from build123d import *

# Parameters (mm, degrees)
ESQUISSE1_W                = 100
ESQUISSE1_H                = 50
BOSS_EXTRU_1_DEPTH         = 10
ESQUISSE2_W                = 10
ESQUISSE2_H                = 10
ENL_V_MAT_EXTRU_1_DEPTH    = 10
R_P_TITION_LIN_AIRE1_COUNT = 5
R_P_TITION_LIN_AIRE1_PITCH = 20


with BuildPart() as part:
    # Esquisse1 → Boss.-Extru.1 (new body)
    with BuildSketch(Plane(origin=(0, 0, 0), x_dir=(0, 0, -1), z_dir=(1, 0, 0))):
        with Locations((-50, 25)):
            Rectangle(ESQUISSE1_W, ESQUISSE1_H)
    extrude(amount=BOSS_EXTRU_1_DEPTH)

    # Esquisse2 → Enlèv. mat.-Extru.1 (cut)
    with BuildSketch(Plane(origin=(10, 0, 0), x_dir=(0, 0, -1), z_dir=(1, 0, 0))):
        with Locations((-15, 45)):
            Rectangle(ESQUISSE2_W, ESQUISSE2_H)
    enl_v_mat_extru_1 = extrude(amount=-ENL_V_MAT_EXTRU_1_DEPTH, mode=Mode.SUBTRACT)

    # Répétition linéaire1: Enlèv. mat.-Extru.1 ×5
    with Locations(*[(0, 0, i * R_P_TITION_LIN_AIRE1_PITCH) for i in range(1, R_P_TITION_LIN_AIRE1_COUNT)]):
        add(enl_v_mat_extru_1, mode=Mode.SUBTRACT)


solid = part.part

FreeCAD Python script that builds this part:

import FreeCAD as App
import Part
import Sketcher

V = App.Vector
Q = App.Units.Quantity


def add_polygon(sketch, points):
    """Adds a closed chain of lines whose ends are joined by coincident constraints."""
    first, n = sketch.GeometryCount, len(points)
    for a, b in zip(points, points[1:] + points[:1]):
        sketch.addGeometry(Part.LineSegment(App.Vector(*a, 0), App.Vector(*b, 0)), False)
    for i in range(n):
        sketch.addConstraint(Sketcher.Constraint("Coincident", first + i, 2, first + (i + 1) % n, 1))

doc = App.newDocument("Part")
body = doc.addObject("PartDesign::Body", "Body")

# Sketch on YZ plane
sketch1 = doc.addObject("Sketcher::SketchObject", "Sketch")
body.addObject(sketch1)
sketch1.AttachmentSupport = (doc.YZ_Plane, [""])
sketch1.MapMode = "FlatFace"
add_polygon(sketch1, [(50, 100), (0, 100), (0, 0), (50, 0)])  # lines 0-3
sketch1.addConstraint([
    Sketcher.Constraint("Horizontal", 0),
    Sketcher.Constraint("Vertical", 1),
    Sketcher.Constraint("Horizontal", 2),
    Sketcher.Constraint("Vertical", 3),
    Sketcher.Constraint("Coincident", 1, 2, -1, 1),
    Sketcher.Constraint("DistanceX", 0, 2, 0, 1, Q("50 mm")),
    Sketcher.Constraint("DistanceY", 1, 2, 1, 1, Q("100 mm")),
])
pad1 = doc.addObject("PartDesign::Pad", "Pad")
body.addObject(pad1)
pad1.Profile = sketch1
pad1.Length = 10

# Sketch on YZ plane
sketch2 = doc.addObject("Sketcher::SketchObject", "Sketch001")
body.addObject(sketch2)
sketch2.AttachmentSupport = (doc.YZ_Plane, [""])
sketch2.MapMode = "FlatFace"
sketch2.AttachmentOffset = App.Placement(V(0, 0, 10), App.Rotation())
add_polygon(sketch2, [(50, 20), (40, 20), (40, 10), (50, 10)])  # lines 0-3
sketch2.addConstraint([
    Sketcher.Constraint("Horizontal", 0),
    Sketcher.Constraint("Vertical", 1),
    Sketcher.Constraint("Horizontal", 2),
    Sketcher.Constraint("Vertical", 3),
    Sketcher.Constraint("Equal", 2, 1),
    Sketcher.Constraint("DistanceX", 0, 2, 0, 1, Q("10 mm")),
    Sketcher.Constraint("DistanceX", -1, 1, 0, 2, Q("40 mm")),
    Sketcher.Constraint("DistanceY", -1, 1, 0, 2, Q("20 mm")),
])
pocket1 = doc.addObject("PartDesign::Pocket", "Pocket")
body.addObject(pocket1)
pocket1.Profile = sketch2
pocket1.Length = 10
doc.recompute()

linearpattern = doc.addObject("PartDesign::LinearPattern", "LinearPattern")
body.addObject(linearpattern)
linearpattern.Originals = [pocket1]
linearpattern.Direction = (doc.Z_Axis, [""])
linearpattern.Mode = "offset"
linearpattern.Offset = 20
linearpattern.Occurrences = 5
body.Tip = linearpattern

doc.recompute()
